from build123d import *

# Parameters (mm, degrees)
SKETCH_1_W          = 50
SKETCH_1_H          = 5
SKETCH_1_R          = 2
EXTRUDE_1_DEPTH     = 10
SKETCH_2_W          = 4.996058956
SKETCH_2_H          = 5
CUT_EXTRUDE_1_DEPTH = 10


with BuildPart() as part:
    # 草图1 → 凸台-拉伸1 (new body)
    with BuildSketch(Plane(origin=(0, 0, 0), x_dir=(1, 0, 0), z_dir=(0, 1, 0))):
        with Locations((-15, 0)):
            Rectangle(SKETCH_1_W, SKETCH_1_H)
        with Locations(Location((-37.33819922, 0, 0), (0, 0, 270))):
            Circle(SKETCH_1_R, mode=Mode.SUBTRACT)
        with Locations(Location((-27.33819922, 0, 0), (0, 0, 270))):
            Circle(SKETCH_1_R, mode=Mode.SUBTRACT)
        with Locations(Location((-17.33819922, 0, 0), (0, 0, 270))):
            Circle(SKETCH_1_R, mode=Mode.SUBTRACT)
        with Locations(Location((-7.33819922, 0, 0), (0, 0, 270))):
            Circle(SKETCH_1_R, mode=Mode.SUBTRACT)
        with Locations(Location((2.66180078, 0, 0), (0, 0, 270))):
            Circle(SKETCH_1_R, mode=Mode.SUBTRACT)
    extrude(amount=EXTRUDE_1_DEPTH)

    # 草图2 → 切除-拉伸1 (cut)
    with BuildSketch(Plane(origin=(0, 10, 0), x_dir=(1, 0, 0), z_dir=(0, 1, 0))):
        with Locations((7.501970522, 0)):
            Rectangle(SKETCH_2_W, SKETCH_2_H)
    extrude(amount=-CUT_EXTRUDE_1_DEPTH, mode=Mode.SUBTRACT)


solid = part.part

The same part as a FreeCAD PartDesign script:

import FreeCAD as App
import Part
import Sketcher
from FreeCAD import Vector
Q = App.Units.Quantity

doc = App.newDocument("Part")
body = doc.addObject("PartDesign::Body", "Body")

# Sketch on XZ plane
sketch1 = doc.addObject("Sketcher::SketchObject", "Sketch")
body.addObject(sketch1)
sketch1.AttachmentSupport = (doc.XZ_Plane, [""])
sketch1.MapMode = "FlatFace"
sketch1.addGeometry(Part.LineSegment(Vector(-40, -2.5, 0), Vector(-40, 2.5, 0)), False)
sketch1.addGeometry(Part.LineSegment(Vector(-40, 2.5, 0), Vector(10, 2.5, 0)), False)
sketch1.addGeometry(Part.LineSegment(Vector(10, 2.5, 0), Vector(10, -2.5, 0)), False)
sketch1.addGeometry(Part.LineSegment(Vector(10, -2.5, 0), Vector(-40, -2.5, 0)), False)
sketch1.addGeometry(Part.Circle(Vector(-37.3, 0, 0), Vector(0, 0, 1), 2), False)
sketch1.addGeometry(Part.Circle(Vector(-27.3, 0, 0), Vector(0, 0, 1), 2), False)
sketch1.addGeometry(Part.Circle(Vector(-17.3, 0, 0), Vector(0, 0, 1), 2), False)
sketch1.addGeometry(Part.Circle(Vector(-7.3, 0, 0), Vector(0, 0, 1), 2), False)
sketch1.addGeometry(Part.Circle(Vector(2.7, 0, 0), Vector(0, 0, 1), 2), False)
sketch1.addConstraint(Sketcher.Constraint("Coincident", 0, 2, 1, 1))
sketch1.addConstraint(Sketcher.Constraint("Coincident", 1, 2, 2, 1))
sketch1.addConstraint(Sketcher.Constraint("Coincident", 2, 2, 3, 1))
sketch1.addConstraint(Sketcher.Constraint("Coincident", 3, 2, 0, 1))
sketch1.addConstraint(Sketcher.Constraint("Vertical", 0))
sketch1.addConstraint(Sketcher.Constraint("Horizontal", 1))
sketch1.addConstraint(Sketcher.Constraint("Vertical", 2))
sketch1.addConstraint(Sketcher.Constraint("Horizontal", 3))
sketch1.addConstraint(Sketcher.Constraint("Equal", 4, 5))
sketch1.addConstraint(Sketcher.Constraint("Equal", 5, 6))
sketch1.addConstraint(Sketcher.Constraint("Equal", 6, 7))
sketch1.addConstraint(Sketcher.Constraint("Equal", 7, 8))
sketch1.addConstraint(Sketcher.Constraint("PointOnObject", 4, 3, -1))
sketch1.addConstraint(Sketcher.Constraint("PointOnObject", 5, 3, -1))
sketch1.addConstraint(Sketcher.Constraint("PointOnObject", 6, 3, -1))
sketch1.addConstraint(Sketcher.Constraint("PointOnObject", 7, 3, -1))
sketch1.addConstraint(Sketcher.Constraint("PointOnObject", 8, 3, -1))
sketch1.addConstraint(Sketcher.Constraint("Diameter", 4, Q("4 mm")))
sketch1.addConstraint(Sketcher.Constraint("DistanceX", 1, 1, 1, 2, Q("50 mm")))
sketch1.addConstraint(Sketcher.Constraint("DistanceY", 0, 1, 0, 2, Q("5 mm")))
sketch1.addConstraint(Sketcher.Constraint("DistanceX", 0, 2, -1, 1, Q("40 mm")))
sketch1.addConstraint(Sketcher.Constraint("DistanceX", 4, 3, 5, 3, Q("10 mm")))
sketch1.addConstraint(Sketcher.Constraint("DistanceX", 5, 3, 6, 3, Q("10 mm")))
sketch1.addConstraint(Sketcher.Constraint("DistanceX", 6, 3, 7, 3, Q("10 mm")))
sketch1.addConstraint(Sketcher.Constraint("DistanceX", 7, 3, 8, 3, Q("10 mm")))
sketch1.addConstraint(Sketcher.Constraint("DistanceY", -1, 1, 0, 2, Q("2.5 mm")))
sketch1.addConstraint(Sketcher.Constraint("DistanceX", 4, 3, -1, 1, Q("37.338199 mm")))
pad1 = doc.addObject("PartDesign::Pad", "Pad")
body.addObject(pad1)
pad1.Profile = sketch1
pad1.Length = 10
pad1.Reversed = True

# Sketch on XZ plane
sketch2 = doc.addObject("Sketcher::SketchObject", "Sketch001")
body.addObject(sketch2)
sketch2.AttachmentSupport = (doc.XZ_Plane, [""])
sketch2.MapMode = "FlatFace"
sketch2.AttachmentOffset = App.Placement(Vector(0, 0, -10), App.Rotation())
sketch2.addGeometry(Part.LineSegment(Vector(5, -2.5, 0), Vector(5, 2.5, 0)), False)
sketch2.addGeometry(Part.LineSegment(Vector(5, 2.5, 0), Vector(10, 2.5, 0)), False)
sketch2.addGeometry(Part.LineSegment(Vector(10, 2.5, 0), Vector(10, -2.5, 0)), False)
sketch2.addGeometry(Part.LineSegment(Vector(10, -2.5, 0), Vector(5, -2.5, 0)), False)
sketch2.addConstraint(Sketcher.Constraint("Coincident", 0, 2, 1, 1))
sketch2.addConstraint(Sketcher.Constraint("Coincident", 1, 2, 2, 1))
sketch2.addConstraint(Sketcher.Constraint("Coincident", 2, 2, 3, 1))
sketch2.addConstraint(Sketcher.Constraint("Coincident", 3, 2, 0, 1))
sketch2.addConstraint(Sketcher.Constraint("Vertical", 0))
sketch2.addConstraint(Sketcher.Constraint("Horizontal", 1))
sketch2.addConstraint(Sketcher.Constraint("Vertical", 2))
sketch2.addConstraint(Sketcher.Constraint("Horizontal", 3))
sketch2.addConstraint(Sketcher.Constraint("DistanceY", 0, 1, 0, 2, Q("5 mm")))
sketch2.addConstraint(Sketcher.Constraint("DistanceX", -1, 1, 1, 2, Q("10 mm")))
sketch2.addConstraint(Sketcher.Constraint("DistanceY", -1, 1, 0, 2, Q("2.5 mm")))
sketch2.addConstraint(Sketcher.Constraint("DistanceX", 1, 1, 1, 2, Q("4.996059 mm")))
pocket1 = doc.addObject("PartDesign::Pocket", "Pocket")
body.addObject(pocket1)
pocket1.Profile = sketch2
pocket1.Length = 10
pocket1.Reversed = True

doc.recompute()
